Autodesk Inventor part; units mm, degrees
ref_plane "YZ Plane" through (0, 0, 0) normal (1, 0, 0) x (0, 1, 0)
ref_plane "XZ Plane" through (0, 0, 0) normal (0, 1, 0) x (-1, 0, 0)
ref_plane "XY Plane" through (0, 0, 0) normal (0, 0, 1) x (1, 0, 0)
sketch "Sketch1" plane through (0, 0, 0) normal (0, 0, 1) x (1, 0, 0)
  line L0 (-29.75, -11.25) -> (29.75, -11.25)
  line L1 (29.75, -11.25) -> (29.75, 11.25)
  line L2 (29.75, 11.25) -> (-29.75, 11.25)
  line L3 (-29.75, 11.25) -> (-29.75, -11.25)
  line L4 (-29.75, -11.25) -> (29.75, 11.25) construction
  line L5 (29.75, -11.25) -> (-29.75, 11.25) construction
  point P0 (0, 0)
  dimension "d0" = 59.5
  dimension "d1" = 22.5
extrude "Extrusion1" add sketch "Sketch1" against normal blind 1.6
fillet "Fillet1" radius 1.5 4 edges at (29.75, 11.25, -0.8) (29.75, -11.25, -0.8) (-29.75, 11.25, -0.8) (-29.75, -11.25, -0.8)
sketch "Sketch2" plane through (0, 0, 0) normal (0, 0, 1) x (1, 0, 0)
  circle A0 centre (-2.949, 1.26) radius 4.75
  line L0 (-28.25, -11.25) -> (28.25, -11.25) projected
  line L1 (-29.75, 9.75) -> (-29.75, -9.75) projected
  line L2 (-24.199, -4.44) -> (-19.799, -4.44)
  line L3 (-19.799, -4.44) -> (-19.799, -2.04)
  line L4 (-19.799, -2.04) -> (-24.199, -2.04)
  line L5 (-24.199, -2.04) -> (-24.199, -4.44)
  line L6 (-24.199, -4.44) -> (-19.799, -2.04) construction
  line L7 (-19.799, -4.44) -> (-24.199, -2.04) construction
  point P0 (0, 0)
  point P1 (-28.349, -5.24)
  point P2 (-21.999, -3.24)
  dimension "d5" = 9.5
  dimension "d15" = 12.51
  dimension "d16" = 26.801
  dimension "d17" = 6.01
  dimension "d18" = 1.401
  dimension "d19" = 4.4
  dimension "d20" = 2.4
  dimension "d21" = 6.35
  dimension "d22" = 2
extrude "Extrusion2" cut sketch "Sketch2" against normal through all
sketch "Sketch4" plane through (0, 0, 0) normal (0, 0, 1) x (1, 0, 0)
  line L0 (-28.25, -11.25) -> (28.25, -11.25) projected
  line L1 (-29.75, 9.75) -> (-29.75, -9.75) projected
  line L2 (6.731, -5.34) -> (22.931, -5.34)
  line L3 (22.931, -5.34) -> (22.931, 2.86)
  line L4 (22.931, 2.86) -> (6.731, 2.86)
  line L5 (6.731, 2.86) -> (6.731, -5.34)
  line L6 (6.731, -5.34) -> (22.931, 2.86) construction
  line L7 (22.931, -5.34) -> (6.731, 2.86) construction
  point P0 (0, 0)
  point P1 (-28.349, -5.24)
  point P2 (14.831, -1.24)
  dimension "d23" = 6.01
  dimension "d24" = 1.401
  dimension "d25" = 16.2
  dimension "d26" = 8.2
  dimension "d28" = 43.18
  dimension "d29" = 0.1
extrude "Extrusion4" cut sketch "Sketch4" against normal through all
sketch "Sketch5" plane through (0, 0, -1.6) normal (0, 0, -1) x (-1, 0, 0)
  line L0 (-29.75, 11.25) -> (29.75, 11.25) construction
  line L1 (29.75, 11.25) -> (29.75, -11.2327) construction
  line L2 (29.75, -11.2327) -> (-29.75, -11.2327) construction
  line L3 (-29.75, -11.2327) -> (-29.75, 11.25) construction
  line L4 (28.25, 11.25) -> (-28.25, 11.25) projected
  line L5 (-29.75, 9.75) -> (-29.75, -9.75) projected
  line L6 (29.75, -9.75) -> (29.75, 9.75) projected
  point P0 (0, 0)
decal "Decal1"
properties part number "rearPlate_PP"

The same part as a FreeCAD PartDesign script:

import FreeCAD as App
import Part
import Sketcher


def edges_at(feature, points):
    """Names of the edges that pass closest to the given points."""
    edges = feature.Shape.Edges
    near = lambda p: min(range(len(edges)), key=lambda i: edges[i].distToShape(Part.Vertex(*p))[0])
    return sorted({f"Edge{near(p) + 1}" for p in points})


def add_polygon(sketch, points):
    """Adds a closed chain of lines whose ends are joined by coincident constraints."""
    first, n = sketch.GeometryCount, len(points)
    for a, b in zip(points, points[1:] + points[:1]):
        sketch.addGeometry(Part.LineSegment(App.Vector(*a, 0), App.Vector(*b, 0)), False)
    for i in range(n):
        sketch.addConstraint(Sketcher.Constraint("Coincident", first + i, 2, first + (i + 1) % n, 1))

doc = App.newDocument("Part")
body = doc.addObject("PartDesign::Body", "Body")

sketch1 = body.newObject("Sketcher::SketchObject", "Sketch")
sketch1.AttachmentSupport = (doc.getObject("XY_Plane"), [""])
sketch1.MapMode = "FlatFace"
add_polygon(sketch1, [(-29.75, 11.25), (-29.75, -11.25), (29.75, -11.25), (29.75, 11.25)])
sketch1.addConstraint([
    Sketcher.Constraint("Vertical", 0),
    Sketcher.Constraint("Horizontal", 1),
    Sketcher.Constraint("Vertical", 2),
    Sketcher.Constraint("Horizontal", 3),
    Sketcher.Constraint("Symmetric", 0, 2, 2, 2, -1, 1),
    Sketcher.Constraint("DistanceX", 1, 1, 1, 2, 59.5),
    Sketcher.Constraint("DistanceY", 0, 2, 0, 1, 22.5),
])
pad1 = body.newObject("PartDesign::Pad", "Pad")
pad1.Profile = sketch1
pad1.Length = 1.6
pad1.Reversed = True
doc.recompute()

fillet = body.newObject("PartDesign::Fillet", "Fillet")
fillet.Base = (pad1, edges_at(pad1, [
    (29.75, 11.25, -0.8),
    (29.75, -11.25, -0.8),
    (-29.75, 11.25, -0.8),
    (-29.75, -11.25, -0.8),
]))
fillet.Radius = 1.5

sketch2 = body.newObject("Sketcher::SketchObject", "Sketch001")
sketch2.AttachmentSupport = (doc.getObject("XY_Plane"), [""])
sketch2.MapMode = "FlatFace"
sketch2.addGeometry(Part.Circle(App.Vector(-2.949, 1.26, 0), App.Vector(0, 0, 1), 4.75), False)
add_polygon(sketch2, [(-24.199, -2.04), (-24.199, -4.44), (-19.799, -4.44), (-19.799, -2.04)])
sketch2.addConstraint([
    Sketcher.Constraint("Vertical", 1),
    Sketcher.Constraint("Horizontal", 2),
    Sketcher.Constraint("Vertical", 3),
    Sketcher.Constraint("Horizontal", 4),
    Sketcher.Constraint("Diameter", 0, 9.5),
    Sketcher.Constraint("DistanceX", 2, 1, 2, 2, 4.4),
    Sketcher.Constraint("DistanceY", 1, 2, 1, 1, 2.4),
    Sketcher.Constraint("DistanceY", 1, 2, 0, 3, 5.7),
    Sketcher.Constraint("DistanceY", -1, 1, 0, 3, 1.26),
    Sketcher.Constraint("DistanceX", 1, 2, 0, 3, 21.25),
    Sketcher.Constraint("DistanceX", 0, 3, -1, 1, 2.949),
])
pocket1 = body.newObject("PartDesign::Pocket", "Pocket")
pocket1.Profile = sketch2
pocket1.Type = "ThroughAll"

sketch3 = body.newObject("Sketcher::SketchObject", "Sketch002")
sketch3.AttachmentSupport = (doc.getObject("XY_Plane"), [""])
sketch3.MapMode = "FlatFace"
add_polygon(sketch3, [(6.731, 2.86), (6.731, -5.34), (22.931, -5.34), (22.931, 2.86)])
sketch3.addConstraint([
    Sketcher.Constraint("Vertical", 0),
    Sketcher.Constraint("Horizontal", 1),
    Sketcher.Constraint("Vertical", 2),
    Sketcher.Constraint("Horizontal", 3),
    Sketcher.Constraint("DistanceX", 1, 1, 1, 2, 16.2),
    Sketcher.Constraint("DistanceY", 0, 2, 0, 1, 8.2),
    Sketcher.Constraint("DistanceY", 0, 2, -1, 1, 5.34),
    Sketcher.Constraint("DistanceX", -1, 1, 0, 2, 6.731),
])
pocket2 = body.newObject("PartDesign::Pocket", "Pocket001")
pocket2.Profile = sketch3
pocket2.Type = "ThroughAll"

doc.recompute()
